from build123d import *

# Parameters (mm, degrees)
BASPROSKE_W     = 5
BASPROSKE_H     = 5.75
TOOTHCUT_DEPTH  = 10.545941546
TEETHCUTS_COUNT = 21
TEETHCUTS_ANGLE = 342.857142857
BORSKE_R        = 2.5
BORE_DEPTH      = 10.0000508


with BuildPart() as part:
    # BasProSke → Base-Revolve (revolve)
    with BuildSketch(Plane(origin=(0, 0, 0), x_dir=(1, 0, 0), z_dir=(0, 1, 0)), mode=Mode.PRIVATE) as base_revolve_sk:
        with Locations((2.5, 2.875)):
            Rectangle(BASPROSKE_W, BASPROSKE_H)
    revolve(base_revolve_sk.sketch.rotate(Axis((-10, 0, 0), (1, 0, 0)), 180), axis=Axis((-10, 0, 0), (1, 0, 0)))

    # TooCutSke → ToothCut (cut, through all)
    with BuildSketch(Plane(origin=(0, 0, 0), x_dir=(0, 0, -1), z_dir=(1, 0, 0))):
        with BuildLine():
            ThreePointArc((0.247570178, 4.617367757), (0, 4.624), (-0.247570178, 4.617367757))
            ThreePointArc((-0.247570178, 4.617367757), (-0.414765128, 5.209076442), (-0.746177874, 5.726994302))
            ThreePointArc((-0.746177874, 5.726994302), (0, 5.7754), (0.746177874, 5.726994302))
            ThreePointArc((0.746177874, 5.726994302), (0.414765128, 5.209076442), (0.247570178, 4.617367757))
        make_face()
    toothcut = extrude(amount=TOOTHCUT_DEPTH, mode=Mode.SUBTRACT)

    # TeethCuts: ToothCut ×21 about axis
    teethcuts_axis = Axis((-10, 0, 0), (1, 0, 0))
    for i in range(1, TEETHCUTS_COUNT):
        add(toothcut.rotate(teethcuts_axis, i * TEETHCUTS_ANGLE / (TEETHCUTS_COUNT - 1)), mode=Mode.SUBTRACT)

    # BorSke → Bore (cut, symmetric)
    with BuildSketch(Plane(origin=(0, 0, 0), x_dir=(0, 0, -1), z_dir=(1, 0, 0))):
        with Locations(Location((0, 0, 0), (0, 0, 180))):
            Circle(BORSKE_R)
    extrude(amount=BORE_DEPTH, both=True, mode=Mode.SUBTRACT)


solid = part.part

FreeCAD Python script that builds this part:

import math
import FreeCAD as App
import Part
import Sketcher

V = App.Vector
Q = App.Units.Quantity

doc = App.newDocument("Part")
body = doc.addObject("PartDesign::Body", "Body")

# Sketch on XZ plane
sketch1 = body.newObject("Sketcher::SketchObject", "Sketch")
sketch1.AttachmentSupport = (doc.getObject("XZ_Plane"), [""])
sketch1.MapMode = "FlatFace"
sketch1.addGeometry(Part.LineSegment(V(0, -5.75, 0), V(0, 0, 0)), False)
sketch1.addGeometry(Part.LineSegment(V(0, 0, 0), V(5, 0, 0)), False)
sketch1.addGeometry(Part.LineSegment(V(5, 0, 0), V(5, -5.75, 0)), False)
sketch1.addGeometry(Part.LineSegment(V(5, -5.75, 0), V(0, -5.75, 0)), False)
sketch1.addConstraint(Sketcher.Constraint("Coincident", 0, 2, 1, 1))
sketch1.addConstraint(Sketcher.Constraint("Coincident", 1, 2, 2, 1))
sketch1.addConstraint(Sketcher.Constraint("Coincident", 2, 2, 3, 1))
sketch1.addConstraint(Sketcher.Constraint("Coincident", 3, 2, 0, 1))
sketch1.addConstraint(Sketcher.Constraint("Vertical", 0))
sketch1.addConstraint(Sketcher.Constraint("Horizontal", 1))
sketch1.addConstraint(Sketcher.Constraint("Vertical", 2))
sketch1.addConstraint(Sketcher.Constraint("Horizontal", 3))
sketch1.addConstraint(Sketcher.Constraint("Coincident", 0, 2, -1, 1))
sketch1.addConstraint(Sketcher.Constraint("DistanceX", 1, 1, 1, 2, Q("5 mm")))
sketch1.addConstraint(Sketcher.Constraint("DistanceY", 0, 1, 0, 2, Q("5.75 mm")))
revolution = body.newObject("PartDesign::Revolution", "Revolution")
revolution.Profile = sketch1
revolution.ReferenceAxis = (sketch1, ["H_Axis"])
revolution.Angle = 360

# Sketch on YZ plane
sketch2 = body.newObject("Sketcher::SketchObject", "Sketch001")
sketch2.AttachmentSupport = (doc.getObject("YZ_Plane"), [""])
sketch2.MapMode = "FlatFace"
sketch2.addGeometry(Part.ArcOfCircle(Part.Circle(V(0, 0, 0), V(0, 0, 1), 4.624), math.radians(-3.069099), math.radians(3.069099)), False)
sketch2.addGeometry(Part.ArcOfCircle(Part.Circle(V(4.34835, -2.330268, 0), V(0, 0, 1), 2.1), math.radians(48.966736), math.radians(82.639987)), False)
sketch2.addGeometry(Part.ArcOfCircle(Part.Circle(V(0, 0, 0), V(0, 0, 1), 5.7754), math.radians(-7.423328), math.radians(7.423328)), False)
sketch2.addGeometry(Part.ArcOfCircle(Part.Circle(V(4.34835, 2.330268, 0), V(0, 0, 1), 2.1), math.radians(-82.639987), math.radians(-48.966736)), False)
sketch2.addConstraint(Sketcher.Constraint("Coincident", 0, 1, 1, 2))
sketch2.addConstraint(Sketcher.Constraint("Coincident", 1, 1, 2, 1))
sketch2.addConstraint(Sketcher.Constraint("Coincident", 2, 2, 3, 2))
sketch2.addConstraint(Sketcher.Constraint("Coincident", 3, 1, 0, 2))
sketch2.addConstraint(Sketcher.Constraint("Coincident", 0, 3, -1, 1))
sketch2.addConstraint(Sketcher.Constraint("Coincident", 2, 3, -1, 1))
sketch2.addConstraint(Sketcher.Constraint("Equal", 1, 3))
sketch2.addConstraint(Sketcher.Constraint("Symmetric", 1, 3, 3, 3, -1))
sketch2.addConstraint(Sketcher.Constraint("Radius", 1, Q("2.1 mm")))
sketch2.addConstraint(Sketcher.Constraint("Radius", 0, Q("4.624 mm")))
sketch2.addConstraint(Sketcher.Constraint("Radius", 2, Q("5.7754 mm")))
sketch2.addConstraint(Sketcher.Constraint("DistanceX", -1, 1, 1, 3, Q("4.34835 mm")))
sketch2.addConstraint(Sketcher.Constraint("DistanceY", 0, 1, -1, 1, Q("0.24757 mm")))
pocket1 = body.newObject("PartDesign::Pocket", "Pocket")
pocket1.Profile = sketch2
pocket1.Type = "ThroughAll"
pocket1.Reversed = True
doc.recompute()

polarpattern = body.newObject("PartDesign::PolarPattern", "PolarPattern")
polarpattern.Originals = [pocket1]
polarpattern.Axis = (doc.getObject("X_Axis"), [""])
polarpattern.Angle = 360
polarpattern.Occurrences = 21
body.Tip = polarpattern

# Sketch on YZ plane
sketch3 = body.newObject("Sketcher::SketchObject", "Sketch002")
sketch3.AttachmentSupport = (doc.getObject("YZ_Plane"), [""])
sketch3.MapMode = "FlatFace"
sketch3.addGeometry(Part.Circle(V(0, 0, 0), V(0, 0, 1), 2.5), False)
sketch3.addConstraint(Sketcher.Constraint("Coincident", 0, 3, -1, 1))
sketch3.addConstraint(Sketcher.Constraint("Diameter", 0, Q("5 mm")))
pocket2 = body.newObject("PartDesign::Pocket", "Pocket001")
pocket2.Profile = sketch3
pocket2.Length = 20.000102
pocket2.Midplane = True

doc.recompute()
